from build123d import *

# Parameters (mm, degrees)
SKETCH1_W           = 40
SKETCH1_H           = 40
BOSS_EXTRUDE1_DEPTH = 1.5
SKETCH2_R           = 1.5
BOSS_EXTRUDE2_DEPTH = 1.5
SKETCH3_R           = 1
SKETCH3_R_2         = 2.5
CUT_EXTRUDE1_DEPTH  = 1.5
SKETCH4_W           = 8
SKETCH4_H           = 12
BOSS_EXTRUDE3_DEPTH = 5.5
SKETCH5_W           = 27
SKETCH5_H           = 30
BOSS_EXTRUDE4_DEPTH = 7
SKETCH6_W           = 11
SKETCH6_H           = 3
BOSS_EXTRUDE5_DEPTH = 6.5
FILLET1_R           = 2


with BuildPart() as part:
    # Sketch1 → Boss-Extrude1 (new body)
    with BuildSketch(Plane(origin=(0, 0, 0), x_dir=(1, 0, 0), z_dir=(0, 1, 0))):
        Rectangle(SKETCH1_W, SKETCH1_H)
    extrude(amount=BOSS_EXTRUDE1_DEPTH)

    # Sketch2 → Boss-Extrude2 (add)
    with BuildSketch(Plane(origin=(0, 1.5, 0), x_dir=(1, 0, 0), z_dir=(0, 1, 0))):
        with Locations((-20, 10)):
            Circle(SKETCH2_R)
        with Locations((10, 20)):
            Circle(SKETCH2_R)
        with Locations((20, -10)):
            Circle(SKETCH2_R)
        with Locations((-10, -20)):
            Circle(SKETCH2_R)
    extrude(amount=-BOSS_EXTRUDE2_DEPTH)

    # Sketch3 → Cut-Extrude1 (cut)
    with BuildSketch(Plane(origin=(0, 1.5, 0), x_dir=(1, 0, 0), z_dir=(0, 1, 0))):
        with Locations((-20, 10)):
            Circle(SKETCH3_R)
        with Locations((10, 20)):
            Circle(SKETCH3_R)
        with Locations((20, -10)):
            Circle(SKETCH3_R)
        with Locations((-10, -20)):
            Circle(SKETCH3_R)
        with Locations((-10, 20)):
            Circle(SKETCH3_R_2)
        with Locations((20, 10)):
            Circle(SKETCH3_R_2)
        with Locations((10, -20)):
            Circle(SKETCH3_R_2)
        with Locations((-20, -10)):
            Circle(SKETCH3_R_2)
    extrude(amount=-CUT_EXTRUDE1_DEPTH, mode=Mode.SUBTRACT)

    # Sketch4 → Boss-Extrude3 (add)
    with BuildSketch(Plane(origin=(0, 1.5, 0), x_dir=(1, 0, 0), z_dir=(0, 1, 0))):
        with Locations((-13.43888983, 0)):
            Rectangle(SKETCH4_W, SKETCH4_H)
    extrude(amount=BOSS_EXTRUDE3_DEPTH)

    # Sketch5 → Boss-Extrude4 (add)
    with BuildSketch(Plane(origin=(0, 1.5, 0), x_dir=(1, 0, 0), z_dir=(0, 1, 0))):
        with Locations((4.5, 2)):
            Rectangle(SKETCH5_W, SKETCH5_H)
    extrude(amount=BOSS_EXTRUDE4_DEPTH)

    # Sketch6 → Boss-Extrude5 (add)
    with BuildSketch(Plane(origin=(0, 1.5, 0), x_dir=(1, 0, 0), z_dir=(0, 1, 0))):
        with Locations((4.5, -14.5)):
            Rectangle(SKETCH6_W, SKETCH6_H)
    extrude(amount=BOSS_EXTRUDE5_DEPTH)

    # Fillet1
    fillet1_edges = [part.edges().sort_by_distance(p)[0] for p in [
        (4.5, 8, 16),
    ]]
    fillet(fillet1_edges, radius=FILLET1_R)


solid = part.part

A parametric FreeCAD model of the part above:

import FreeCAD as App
import Part
import Sketcher

V = App.Vector


def edges_at(feature, points):
    """Names of the edges that pass closest to the given points."""
    edges = feature.Shape.Edges
    near = lambda p: min(range(len(edges)), key=lambda i: edges[i].distToShape(Part.Vertex(*p))[0])
    return sorted({f"Edge{near(p) + 1}" for p in points})


def add_polygon(sketch, points):
    """Adds a closed chain of lines whose ends are joined by coincident constraints."""
    first, n = sketch.GeometryCount, len(points)
    for a, b in zip(points, points[1:] + points[:1]):
        sketch.addGeometry(Part.LineSegment(App.Vector(*a, 0), App.Vector(*b, 0)), False)
    for i in range(n):
        sketch.addConstraint(Sketcher.Constraint("Coincident", first + i, 2, first + (i + 1) % n, 1))

doc = App.newDocument("Part")
params = doc.addObject("Spreadsheet::Sheet", "Params")
for row, (alias, value) in enumerate([
    ("sketch1_width", "40 mm"),
    ("pad1_length", "1.5 mm"),
    ("sketch2_diameter", "3 mm"),
    ("pad2_length", "1.5 mm"),
    ("sketch3_diameter", "2 mm"),
    ("sketch3_diameter2", "5 mm"),
    ("pocket1_length", "1.5 mm"),
    ("sketch4_width", "8 mm"),
    ("sketch4_height", "12 mm"),
    ("pad3_length", "5.5 mm"),
    ("sketch5_width", "27 mm"),
    ("sketch5_height", "30 mm"),
    ("pad4_length", "7 mm"),
    ("sketch6_width", "11 mm"),
    ("sketch6_height", "3 mm"),
    ("pad5_length", "6.5 mm"),
    ("fillet_radius", "2 mm"),
], start=1):
    params.set(f"A{row}", alias)
    params.set(f"B{row}", "=" + value)
    params.setAlias(f"B{row}", alias)

body = doc.addObject("PartDesign::Body", "Body")

# Sketch on XZ plane
sketch1 = body.newObject("Sketcher::SketchObject", "Sketch")
sketch1.AttachmentSupport = (doc.getObject("XZ_Plane"), [""])
sketch1.MapMode = "FlatFace"
add_polygon(sketch1, [(-20, -20), (-20, 20), (20, 20), (20, -20)])  # lines 0-3
sketch1.addConstraint([
    Sketcher.Constraint("Vertical", 0),
    Sketcher.Constraint("Horizontal", 1),
    Sketcher.Constraint("Vertical", 2),
    Sketcher.Constraint("Horizontal", 3),
    Sketcher.Constraint("Symmetric", 0, 2, 2, 2, -1, 1),
    Sketcher.Constraint("Equal", 3, 0),
    Sketcher.Constraint("DistanceX", 1, 1, 1, 2, 40.0),
])
sketch1.setExpression("Constraints[10]", "Params.sketch1_width")
pad1 = body.newObject("PartDesign::Pad", "Pad")
pad1.Profile = sketch1
pad1.setExpression("Length", "Params.pad1_length")
pad1.Reversed = True

# Sketch on XZ plane
sketch2 = body.newObject("Sketcher::SketchObject", "Sketch001")
sketch2.AttachmentSupport = (doc.getObject("XZ_Plane"), [""])
sketch2.MapMode = "FlatFace"
sketch2.AttachmentOffset = App.Placement(V(0, 0, -1.5), App.Rotation())
sketch2.addGeometry([
    Part.Circle(V(-20, -10, 0), V(0, 0, 1), 1.5),
    Part.Circle(V(10, -20, 0), V(0, 0, 1), 1.5),
    Part.Circle(V(20, 10, 0), V(0, 0, 1), 1.5),
    Part.Circle(V(-10, 20, 0), V(0, 0, 1), 1.5),
], False)
sketch2.addConstraint([
    Sketcher.Constraint("Equal", 0, 1),
    Sketcher.Constraint("Equal", 1, 2),
    Sketcher.Constraint("Equal", 2, 3),
    Sketcher.Constraint("Symmetric", 0, 3, 2, 3, -1, 1),
    Sketcher.Constraint("Symmetric", 1, 3, 3, 3, -1, 1),
    Sketcher.Constraint("Diameter", 0, 3.0),
    Sketcher.Constraint("DistanceX", 0, 3, -1, 1, 20.0),
    Sketcher.Constraint("DistanceY", 0, 3, -1, 1, 10.0),
    Sketcher.Constraint("DistanceX", -1, 1, 1, 3, 10.0),
    Sketcher.Constraint("DistanceY", 1, 3, -1, 1, 20.0),
])
sketch2.setExpression("Constraints[5]", "Params.sketch2_diameter")
pad2 = body.newObject("PartDesign::Pad", "Pad001")
pad2.Profile = sketch2
pad2.setExpression("Length", "Params.pad2_length")

# Sketch on XZ plane
sketch3 = body.newObject("Sketcher::SketchObject", "Sketch002")
sketch3.AttachmentSupport = (doc.getObject("XZ_Plane"), [""])
sketch3.MapMode = "FlatFace"
sketch3.AttachmentOffset = App.Placement(V(0, 0, -1.5), App.Rotation())
sketch3.addGeometry([
    Part.Circle(V(-20, -10, 0), V(0, 0, 1), 1),  # 0
    Part.Circle(V(10, -20, 0), V(0, 0, 1), 1),  # 1
    Part.Circle(V(20, 10, 0), V(0, 0, 1), 1),  # 2
    Part.Circle(V(-10, 20, 0), V(0, 0, 1), 1),  # 3
    Part.Circle(V(-10, -20, 0), V(0, 0, 1), 2.5),  # 4
    Part.Circle(V(20, -10, 0), V(0, 0, 1), 2.5),  # 5
    Part.Circle(V(10, 20, 0), V(0, 0, 1), 2.5),  # 6
    Part.Circle(V(-20, 10, 0), V(0, 0, 1), 2.5),  # 7
], False)
sketch3.addConstraint([
    Sketcher.Constraint("Equal", 0, 1),
    Sketcher.Constraint("Equal", 1, 2),
    Sketcher.Constraint("Equal", 2, 3),
    Sketcher.Constraint("Equal", 4, 5),
    Sketcher.Constraint("Equal", 5, 6),
    Sketcher.Constraint("Equal", 6, 7),
    Sketcher.Constraint("Symmetric", 0, 3, 2, 3, -1, 1),
    Sketcher.Constraint("Symmetric", 1, 3, 3, 3, -1, 1),
    Sketcher.Constraint("Symmetric", 4, 3, 6, 3, -1, 1),
    Sketcher.Constraint("Symmetric", 5, 3, 7, 3, -1, 1),
    Sketcher.Constraint("Symmetric", 1, 3, 4, 3, -2),
    Sketcher.Constraint("Symmetric", 0, 3, 5, 3, -2),
    Sketcher.Constraint("Diameter", 0, 2.0),
    Sketcher.Constraint("Diameter", 4, 5.0),
    Sketcher.Constraint("DistanceX", 0, 3, -1, 1, 20.0),
    Sketcher.Constraint("DistanceY", 0, 3, -1, 1, 10.0),
    Sketcher.Constraint("DistanceX", -1, 1, 1, 3, 10.0),
    Sketcher.Constraint("DistanceY", 1, 3, -1, 1, 20.0),
])
sketch3.setExpression("Constraints[12]", "Params.sketch3_diameter")
sketch3.setExpression("Constraints[13]", "Params.sketch3_diameter2")
pocket1 = body.newObject("PartDesign::Pocket", "Pocket")
pocket1.Profile = sketch3
pocket1.setExpression("Length", "Params.pocket1_length")
pocket1.Reversed = True

# Sketch on XZ plane
sketch4 = body.newObject("Sketcher::SketchObject", "Sketch003")
sketch4.AttachmentSupport = (doc.getObject("XZ_Plane"), [""])
sketch4.MapMode = "FlatFace"
sketch4.AttachmentOffset = App.Placement(V(0, 0, -1.5), App.Rotation())
add_polygon(sketch4, [(-17, -6), (-17, 6), (-9, 6), (-9, -6)])  # lines 0-3
sketch4.addConstraint([
    Sketcher.Constraint("Vertical", 0),
    Sketcher.Constraint("Horizontal", 1),
    Sketcher.Constraint("Vertical", 2),
    Sketcher.Constraint("Horizontal", 3),
    Sketcher.Constraint("DistanceX", 1, 1, 1, 2, 8.0),
    Sketcher.Constraint("DistanceY", 0, 1, 0, 2, 12.0),
    Sketcher.Constraint("DistanceY", -1, 1, 0, 2, 6.0),
    Sketcher.Constraint("DistanceX", 0, 2, -1, 1, 17.43889),
])
sketch4.setExpression("Constraints[8]", "Params.sketch4_width")
sketch4.setExpression("Constraints[9]", "Params.sketch4_height")
pad3 = body.newObject("PartDesign::Pad", "Pad002")
pad3.Profile = sketch4
pad3.setExpression("Length", "Params.pad3_length")
pad3.Reversed = True

# Sketch on XZ plane
sketch5 = body.newObject("Sketcher::SketchObject", "Sketch004")
sketch5.AttachmentSupport = (doc.getObject("XZ_Plane"), [""])
sketch5.MapMode = "FlatFace"
sketch5.AttachmentOffset = App.Placement(V(0, 0, -1.5), App.Rotation())
add_polygon(sketch5, [(-9, -17), (-9, 13), (18, 13), (18, -17)])  # lines 0-3
sketch5.addConstraint([
    Sketcher.Constraint("Vertical", 0),
    Sketcher.Constraint("Horizontal", 1),
    Sketcher.Constraint("Vertical", 2),
    Sketcher.Constraint("Horizontal", 3),
    Sketcher.Constraint("DistanceX", 1, 1, 1, 2, 27.0),
    Sketcher.Constraint("DistanceY", 0, 1, 0, 2, 30.0),
    Sketcher.Constraint("DistanceX", 0, 2, -1, 1, 9.0),
    Sketcher.Constraint("DistanceY", -1, 1, 0, 2, 13.0),
])
sketch5.setExpression("Constraints[8]", "Params.sketch5_width")
sketch5.setExpression("Constraints[9]", "Params.sketch5_height")
pad4 = body.newObject("PartDesign::Pad", "Pad003")
pad4.Profile = sketch5
pad4.setExpression("Length", "Params.pad4_length")
pad4.Reversed = True

# Sketch on XZ plane
sketch6 = body.newObject("Sketcher::SketchObject", "Sketch005")
sketch6.AttachmentSupport = (doc.getObject("XZ_Plane"), [""])
sketch6.MapMode = "FlatFace"
sketch6.AttachmentOffset = App.Placement(V(0, 0, -1.5), App.Rotation())
add_polygon(sketch6, [(-1, 13), (-1, 16), (10, 16), (10, 13)])  # lines 0-3
sketch6.addConstraint([
    Sketcher.Constraint("Vertical", 0),
    Sketcher.Constraint("Horizontal", 1),
    Sketcher.Constraint("Vertical", 2),
    Sketcher.Constraint("Horizontal", 3),
    Sketcher.Constraint("DistanceX", 1, 1, 1, 2, 11.0),
    Sketcher.Constraint("DistanceY", 0, 1, 0, 2, 3.0),
    Sketcher.Constraint("DistanceX", 0, 2, -1, 1, 1.0),
    Sketcher.Constraint("DistanceY", -1, 1, 0, 2, 16.0),
])
sketch6.setExpression("Constraints[8]", "Params.sketch6_width")
sketch6.setExpression("Constraints[9]", "Params.sketch6_height")
pad5 = body.newObject("PartDesign::Pad", "Pad004")
pad5.Profile = sketch6
pad5.setExpression("Length", "Params.pad5_length")
pad5.Reversed = True
doc.recompute()

fillet = body.newObject("PartDesign::Fillet", "Fillet")
fillet.Base = (pad5, edges_at(pad5, [(4.5, 8, 16)]))
fillet.setExpression("Radius", "Params.fillet_radius")

doc.recompute()
